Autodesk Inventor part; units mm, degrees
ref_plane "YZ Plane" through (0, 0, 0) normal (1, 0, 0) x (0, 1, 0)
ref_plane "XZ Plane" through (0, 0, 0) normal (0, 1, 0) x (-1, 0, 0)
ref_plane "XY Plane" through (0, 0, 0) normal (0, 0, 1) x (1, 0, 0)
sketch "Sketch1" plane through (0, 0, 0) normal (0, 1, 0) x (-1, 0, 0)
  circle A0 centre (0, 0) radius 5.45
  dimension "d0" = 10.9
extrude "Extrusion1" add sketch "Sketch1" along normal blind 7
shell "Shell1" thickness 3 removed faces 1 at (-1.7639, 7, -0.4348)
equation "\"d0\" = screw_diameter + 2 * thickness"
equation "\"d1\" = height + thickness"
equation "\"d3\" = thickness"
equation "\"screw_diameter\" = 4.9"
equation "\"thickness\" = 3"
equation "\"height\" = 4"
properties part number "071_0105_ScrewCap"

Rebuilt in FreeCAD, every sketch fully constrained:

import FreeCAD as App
import Part
import Sketcher
from FreeCAD import Vector


def faces_at(feature, points):
    """Names of the faces that lie closest to the given points."""
    faces = feature.Shape.Faces
    near = lambda p: min(range(len(faces)), key=lambda i: faces[i].distToShape(Part.Vertex(*p))[0])
    return sorted({f"Face{near(p) + 1}" for p in points})

doc = App.newDocument("Part")
body = doc.addObject("PartDesign::Body", "Body")

# Sketch on XZ plane
sketch1 = body.newObject("Sketcher::SketchObject", "Sketch")
sketch1.AttachmentSupport = (doc.getObject("XZ_Plane"), [""])
sketch1.MapMode = "FlatFace"
sketch1.addGeometry(Part.Circle(Vector(0, 0, 0), Vector(0, 0, 1), 5), False)
sketch1.addConstraint(Sketcher.Constraint("Coincident", 0, 3, -1, 1))
sketch1.addConstraint(Sketcher.Constraint("Diameter", 0, 10.9))
pad1 = body.newObject("PartDesign::Pad", "Pad")
pad1.Profile = sketch1
pad1.Length = 7
pad1.Reversed = True
doc.recompute()

thickness = body.newObject("PartDesign::Thickness", "Thickness")
thickness.Base = (pad1, faces_at(pad1, [(-1.764, 7, -0.435)]))
thickness.Value = 3
thickness.Reversed = True
thickness.Join = "Intersection"

doc.recompute()
